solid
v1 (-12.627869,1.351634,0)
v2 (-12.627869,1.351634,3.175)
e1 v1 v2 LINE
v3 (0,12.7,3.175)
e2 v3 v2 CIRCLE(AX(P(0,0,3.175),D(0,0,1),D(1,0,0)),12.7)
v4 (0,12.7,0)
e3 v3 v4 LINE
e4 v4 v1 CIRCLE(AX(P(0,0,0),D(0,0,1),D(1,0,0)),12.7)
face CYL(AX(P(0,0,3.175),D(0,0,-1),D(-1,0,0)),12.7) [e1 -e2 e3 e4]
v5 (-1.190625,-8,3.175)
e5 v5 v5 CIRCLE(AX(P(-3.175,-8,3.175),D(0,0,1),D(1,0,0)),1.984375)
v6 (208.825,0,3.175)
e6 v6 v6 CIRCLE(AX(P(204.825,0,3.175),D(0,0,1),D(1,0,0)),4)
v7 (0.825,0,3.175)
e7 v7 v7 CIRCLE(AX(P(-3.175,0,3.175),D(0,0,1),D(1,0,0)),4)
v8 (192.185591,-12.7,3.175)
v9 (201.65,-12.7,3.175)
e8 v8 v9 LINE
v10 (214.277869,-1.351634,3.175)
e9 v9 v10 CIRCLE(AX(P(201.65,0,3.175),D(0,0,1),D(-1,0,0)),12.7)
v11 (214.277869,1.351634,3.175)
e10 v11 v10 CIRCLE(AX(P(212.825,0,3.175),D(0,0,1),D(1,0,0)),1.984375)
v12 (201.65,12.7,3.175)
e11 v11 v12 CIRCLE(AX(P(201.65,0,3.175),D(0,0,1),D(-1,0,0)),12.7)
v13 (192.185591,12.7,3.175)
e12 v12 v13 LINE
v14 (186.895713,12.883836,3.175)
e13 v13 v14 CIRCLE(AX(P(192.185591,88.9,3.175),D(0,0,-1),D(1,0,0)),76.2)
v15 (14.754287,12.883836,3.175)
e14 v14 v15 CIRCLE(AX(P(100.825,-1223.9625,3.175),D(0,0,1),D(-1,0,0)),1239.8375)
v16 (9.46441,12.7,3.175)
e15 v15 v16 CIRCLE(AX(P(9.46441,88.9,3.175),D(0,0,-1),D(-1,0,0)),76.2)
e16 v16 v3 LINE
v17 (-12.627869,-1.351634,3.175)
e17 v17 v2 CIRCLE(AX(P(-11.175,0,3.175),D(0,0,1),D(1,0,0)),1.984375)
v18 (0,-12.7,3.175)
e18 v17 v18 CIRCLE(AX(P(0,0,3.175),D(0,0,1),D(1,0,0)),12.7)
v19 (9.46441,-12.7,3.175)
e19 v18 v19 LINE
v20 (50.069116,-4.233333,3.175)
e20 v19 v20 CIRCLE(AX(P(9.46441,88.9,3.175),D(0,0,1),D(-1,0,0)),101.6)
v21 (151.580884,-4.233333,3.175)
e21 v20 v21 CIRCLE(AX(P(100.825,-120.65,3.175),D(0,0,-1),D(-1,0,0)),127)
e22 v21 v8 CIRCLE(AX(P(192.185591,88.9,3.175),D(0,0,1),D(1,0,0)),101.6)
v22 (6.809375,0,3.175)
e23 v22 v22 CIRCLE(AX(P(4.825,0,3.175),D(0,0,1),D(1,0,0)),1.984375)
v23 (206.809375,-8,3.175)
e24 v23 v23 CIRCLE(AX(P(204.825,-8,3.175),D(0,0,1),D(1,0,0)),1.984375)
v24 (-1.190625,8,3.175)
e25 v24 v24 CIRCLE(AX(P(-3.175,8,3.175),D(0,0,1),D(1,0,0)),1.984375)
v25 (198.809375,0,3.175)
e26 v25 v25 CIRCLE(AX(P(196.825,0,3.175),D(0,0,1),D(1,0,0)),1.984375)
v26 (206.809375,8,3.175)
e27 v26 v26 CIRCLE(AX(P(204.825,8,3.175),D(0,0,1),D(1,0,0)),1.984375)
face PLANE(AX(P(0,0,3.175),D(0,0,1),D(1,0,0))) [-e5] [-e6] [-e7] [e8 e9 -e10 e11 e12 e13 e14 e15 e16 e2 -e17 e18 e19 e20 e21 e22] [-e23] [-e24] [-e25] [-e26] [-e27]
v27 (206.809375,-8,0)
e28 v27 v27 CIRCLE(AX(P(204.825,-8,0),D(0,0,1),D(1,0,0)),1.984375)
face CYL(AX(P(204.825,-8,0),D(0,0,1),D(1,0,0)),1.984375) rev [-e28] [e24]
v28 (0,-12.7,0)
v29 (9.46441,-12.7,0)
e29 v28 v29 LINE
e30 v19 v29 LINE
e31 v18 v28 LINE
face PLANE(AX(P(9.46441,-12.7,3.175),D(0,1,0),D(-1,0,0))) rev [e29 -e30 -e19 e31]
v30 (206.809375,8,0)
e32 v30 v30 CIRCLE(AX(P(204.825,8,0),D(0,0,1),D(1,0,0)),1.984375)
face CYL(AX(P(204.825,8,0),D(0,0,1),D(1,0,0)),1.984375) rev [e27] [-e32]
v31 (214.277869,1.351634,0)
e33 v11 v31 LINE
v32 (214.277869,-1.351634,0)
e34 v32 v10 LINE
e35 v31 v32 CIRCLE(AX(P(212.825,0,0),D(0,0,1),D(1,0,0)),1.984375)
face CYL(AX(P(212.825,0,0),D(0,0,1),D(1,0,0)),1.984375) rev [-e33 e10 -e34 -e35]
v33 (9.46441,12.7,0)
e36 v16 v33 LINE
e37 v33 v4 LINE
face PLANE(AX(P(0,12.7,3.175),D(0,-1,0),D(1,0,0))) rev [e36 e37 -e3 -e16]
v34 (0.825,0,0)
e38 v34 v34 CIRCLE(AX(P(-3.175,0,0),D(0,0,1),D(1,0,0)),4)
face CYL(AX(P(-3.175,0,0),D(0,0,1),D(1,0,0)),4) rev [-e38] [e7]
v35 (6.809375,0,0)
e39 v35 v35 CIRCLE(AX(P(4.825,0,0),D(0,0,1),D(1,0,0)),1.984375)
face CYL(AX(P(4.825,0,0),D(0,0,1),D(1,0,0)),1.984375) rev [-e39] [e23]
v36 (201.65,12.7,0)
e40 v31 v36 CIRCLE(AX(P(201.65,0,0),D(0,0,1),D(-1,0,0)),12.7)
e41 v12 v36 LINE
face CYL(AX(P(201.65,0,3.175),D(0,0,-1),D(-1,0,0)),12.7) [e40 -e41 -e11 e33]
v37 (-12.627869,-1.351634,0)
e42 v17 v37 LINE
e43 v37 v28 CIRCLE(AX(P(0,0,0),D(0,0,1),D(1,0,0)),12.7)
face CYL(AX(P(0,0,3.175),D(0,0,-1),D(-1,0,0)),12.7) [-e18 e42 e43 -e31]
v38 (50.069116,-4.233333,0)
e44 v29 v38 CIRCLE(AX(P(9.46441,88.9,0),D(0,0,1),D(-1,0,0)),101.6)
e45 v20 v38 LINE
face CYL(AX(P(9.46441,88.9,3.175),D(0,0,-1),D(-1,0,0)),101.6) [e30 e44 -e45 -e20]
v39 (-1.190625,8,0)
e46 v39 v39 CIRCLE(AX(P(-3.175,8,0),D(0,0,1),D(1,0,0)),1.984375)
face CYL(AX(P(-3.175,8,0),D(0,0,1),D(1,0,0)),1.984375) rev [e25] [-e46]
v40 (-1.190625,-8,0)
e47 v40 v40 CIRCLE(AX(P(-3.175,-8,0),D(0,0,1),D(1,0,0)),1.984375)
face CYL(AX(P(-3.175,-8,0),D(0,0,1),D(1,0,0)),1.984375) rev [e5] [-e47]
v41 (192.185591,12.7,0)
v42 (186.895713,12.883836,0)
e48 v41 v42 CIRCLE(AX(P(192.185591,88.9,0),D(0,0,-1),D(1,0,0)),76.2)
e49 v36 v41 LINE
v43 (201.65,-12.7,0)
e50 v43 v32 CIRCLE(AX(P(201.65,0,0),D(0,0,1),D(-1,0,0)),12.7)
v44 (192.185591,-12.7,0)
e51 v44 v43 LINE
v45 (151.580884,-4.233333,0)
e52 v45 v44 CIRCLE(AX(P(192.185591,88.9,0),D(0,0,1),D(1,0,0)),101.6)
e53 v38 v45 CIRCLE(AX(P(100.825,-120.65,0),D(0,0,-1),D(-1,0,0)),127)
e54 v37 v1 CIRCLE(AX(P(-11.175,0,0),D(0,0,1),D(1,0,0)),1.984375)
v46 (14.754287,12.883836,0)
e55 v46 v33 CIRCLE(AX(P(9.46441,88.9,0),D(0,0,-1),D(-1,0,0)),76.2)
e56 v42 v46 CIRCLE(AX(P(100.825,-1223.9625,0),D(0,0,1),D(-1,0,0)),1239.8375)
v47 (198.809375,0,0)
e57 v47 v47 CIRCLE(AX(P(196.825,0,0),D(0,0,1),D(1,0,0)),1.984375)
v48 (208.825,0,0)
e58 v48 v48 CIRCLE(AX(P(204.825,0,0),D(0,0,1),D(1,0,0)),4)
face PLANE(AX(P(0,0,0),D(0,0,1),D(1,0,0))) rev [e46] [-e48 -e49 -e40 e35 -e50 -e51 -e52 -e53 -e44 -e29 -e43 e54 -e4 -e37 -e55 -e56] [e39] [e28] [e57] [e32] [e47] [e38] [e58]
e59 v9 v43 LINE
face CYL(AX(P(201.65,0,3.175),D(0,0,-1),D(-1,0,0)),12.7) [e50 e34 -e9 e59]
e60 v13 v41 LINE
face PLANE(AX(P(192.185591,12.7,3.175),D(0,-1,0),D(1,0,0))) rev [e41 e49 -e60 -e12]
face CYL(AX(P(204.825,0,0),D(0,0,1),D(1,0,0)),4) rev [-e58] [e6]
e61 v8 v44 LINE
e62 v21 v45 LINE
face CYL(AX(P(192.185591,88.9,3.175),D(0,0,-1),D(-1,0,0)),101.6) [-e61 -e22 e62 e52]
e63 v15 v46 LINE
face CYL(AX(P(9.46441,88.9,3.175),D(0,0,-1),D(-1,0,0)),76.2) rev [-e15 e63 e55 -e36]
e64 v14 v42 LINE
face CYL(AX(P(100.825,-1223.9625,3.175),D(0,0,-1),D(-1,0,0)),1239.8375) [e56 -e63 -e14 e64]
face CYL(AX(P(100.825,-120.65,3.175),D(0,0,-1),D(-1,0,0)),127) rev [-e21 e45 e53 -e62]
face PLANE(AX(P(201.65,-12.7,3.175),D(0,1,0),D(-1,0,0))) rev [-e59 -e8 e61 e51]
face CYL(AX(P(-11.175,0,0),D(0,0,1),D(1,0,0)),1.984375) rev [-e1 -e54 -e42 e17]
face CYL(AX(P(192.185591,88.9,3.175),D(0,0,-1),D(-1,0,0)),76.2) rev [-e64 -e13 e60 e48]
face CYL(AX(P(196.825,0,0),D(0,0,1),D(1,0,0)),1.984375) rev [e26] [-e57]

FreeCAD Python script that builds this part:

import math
import FreeCAD as App
import Part
import Sketcher
Q = App.Units.Quantity

doc = App.newDocument("Part")
body = doc.addObject("PartDesign::Body", "Body")

# Sketch on XY plane
sketch1 = doc.addObject("Sketcher::SketchObject", "Sketch")
body.addObject(sketch1)
sketch1.AttachmentSupport = (doc.XY_Plane, [""])
sketch1.MapMode = "FlatFace"
sketch1.addGeometry(Part.LineSegment(App.Vector(9, 13, 0), App.Vector(0, 13, 0)), False)
sketch1.addGeometry(Part.ArcOfCircle(Part.Circle(App.Vector(0, 0, 0), App.Vector(0, 0, 1), 13), math.radians(90), math.radians(270)), False)
sketch1.addGeometry(Part.LineSegment(App.Vector(0, -13, 0), App.Vector(9, -13, 0)), False)
sketch1.addGeometry(Part.ArcOfCircle(Part.Circle(App.Vector(9, 89, 0), App.Vector(0, 0, 1), 102), math.radians(-90), math.radians(-66)), False)
sketch1.addGeometry(Part.ArcOfCircle(Part.Circle(App.Vector(101, -121, 0), App.Vector(0, 0, 1), 127), math.radians(66), math.radians(114)), False)
sketch1.addGeometry(Part.ArcOfCircle(Part.Circle(App.Vector(192, 89, 0), App.Vector(0, 0, 1), 102), math.radians(-114), math.radians(-90)), False)
sketch1.addGeometry(Part.LineSegment(App.Vector(192, -13, 0), App.Vector(202, -13, 0)), False)
sketch1.addGeometry(Part.ArcOfCircle(Part.Circle(App.Vector(202, 0, 0), App.Vector(0, 0, 1), 13), math.radians(-90), math.radians(90)), False)
sketch1.addGeometry(Part.LineSegment(App.Vector(202, 13, 0), App.Vector(192, 13, 0)), False)
sketch1.addGeometry(Part.ArcOfCircle(Part.Circle(App.Vector(192, 89, 0), App.Vector(0, 0, 1), 76), math.radians(-93.98), math.radians(-90)), False)
sketch1.addGeometry(Part.ArcOfCircle(Part.Circle(App.Vector(101, -1224, 0), App.Vector(0, 0, 1), 1240), math.radians(86.02), math.radians(93.98)), False)
sketch1.addGeometry(Part.ArcOfCircle(Part.Circle(App.Vector(9, 89, 0), App.Vector(0, 0, 1), 76), math.radians(-90), math.radians(-86.02)), False)
sketch1.addConstraint(Sketcher.Constraint("Tangent", 0, 2, 1, 1))
sketch1.addConstraint(Sketcher.Constraint("Tangent", 1, 2, 2, 1))
sketch1.addConstraint(Sketcher.Constraint("Tangent", 2, 2, 3, 1))
sketch1.addConstraint(Sketcher.Constraint("Tangent", 3, 2, 4, 2))
sketch1.addConstraint(Sketcher.Constraint("Tangent", 4, 1, 5, 1))
sketch1.addConstraint(Sketcher.Constraint("Tangent", 5, 2, 6, 1))
sketch1.addConstraint(Sketcher.Constraint("Tangent", 6, 2, 7, 1))
sketch1.addConstraint(Sketcher.Constraint("Tangent", 7, 2, 8, 1))
sketch1.addConstraint(Sketcher.Constraint("Tangent", 8, 2, 9, 2))
sketch1.addConstraint(Sketcher.Constraint("Tangent", 9, 1, 10, 1))
sketch1.addConstraint(Sketcher.Constraint("Tangent", 10, 2, 11, 2))
sketch1.addConstraint(Sketcher.Constraint("Tangent", 11, 1, 0, 1))
sketch1.addConstraint(Sketcher.Constraint("Horizontal", 0))
sketch1.addConstraint(Sketcher.Constraint("Horizontal", 2))
sketch1.addConstraint(Sketcher.Constraint("Horizontal", 6))
sketch1.addConstraint(Sketcher.Constraint("Horizontal", 8))
sketch1.addConstraint(Sketcher.Constraint("Coincident", 1, 3, -1, 1))
sketch1.addConstraint(Sketcher.Constraint("Coincident", 9, 3, 5, 3))
sketch1.addConstraint(Sketcher.Constraint("Coincident", 11, 3, 3, 3))
sketch1.addConstraint(Sketcher.Constraint("Equal", 3, 5))
sketch1.addConstraint(Sketcher.Constraint("Equal", 1, 7))
sketch1.addConstraint(Sketcher.Constraint("PointOnObject", 7, 3, -1))
sketch1.addConstraint(Sketcher.Constraint("Equal", 2, 6))
sketch1.addConstraint(Sketcher.Constraint("Radius", 3, Q("4 in")))
sketch1.addConstraint(Sketcher.Constraint("Radius", 4, Q("5 in")))
sketch1.addConstraint(Sketcher.Constraint("Radius", 9, Q("3 in")))
sketch1.addConstraint(Sketcher.Constraint("Radius", 10, Q("48.8125 in")))
sketch1.addConstraint(Sketcher.Constraint("DistanceY", 4, 3, -1, 1, Q("4.75 in")))
sketch1.addConstraint(Sketcher.Constraint("DistanceX", 0, 2, 0, 1, Q("9.46441 mm")))
pad1 = doc.addObject("PartDesign::Pad", "Pad")
body.addObject(pad1)
pad1.Profile = sketch1
pad1.Length = Q("0.125 in")

# Sketch on XY plane
sketch2 = doc.addObject("Sketcher::SketchObject", "Sketch001")
body.addObject(sketch2)
sketch2.AttachmentSupport = (doc.XY_Plane, [""])
sketch2.MapMode = "FlatFace"
sketch2.AttachmentOffset = App.Placement(App.Vector(0, 0, 0.125 * 25.4), App.Rotation())
sketch2.addGeometry(Part.Circle(App.Vector(-3.2, 8, 0), App.Vector(0, 0, 1), 2), False)
sketch2.addGeometry(Part.Circle(App.Vector(-3.2, 0, 0), App.Vector(0, 0, 1), 4), False)
sketch2.addGeometry(Part.Circle(App.Vector(204.8, 0, 0), App.Vector(0, 0, 1), 4), False)
sketch2.addGeometry(Part.Circle(App.Vector(204.8, 8, 0), App.Vector(0, 0, 1), 2), False)
sketch2.addGeometry(Part.Circle(App.Vector(212.8, 0, 0), App.Vector(0, 0, 1), 2), False)
sketch2.addGeometry(Part.Circle(App.Vector(204.8, -8, 0), App.Vector(0, 0, 1), 2), False)
sketch2.addGeometry(Part.Circle(App.Vector(196.8, 0, 0), App.Vector(0, 0, 1), 2), False)
sketch2.addGeometry(Part.Circle(App.Vector(4.8, 0, 0), App.Vector(0, 0, 1), 2), False)
sketch2.addGeometry(Part.Circle(App.Vector(-3.2, -8, 0), App.Vector(0, 0, 1), 2), False)
sketch2.addGeometry(Part.Circle(App.Vector(-11.2, 0, 0), App.Vector(0, 0, 1), 2), False)
sketch2.addConstraint(Sketcher.Constraint("Equal", 1, 2))
sketch2.addConstraint(Sketcher.Constraint("Equal", 0, 3))
sketch2.addConstraint(Sketcher.Constraint("Equal", 3, 4))
sketch2.addConstraint(Sketcher.Constraint("Equal", 4, 5))
sketch2.addConstraint(Sketcher.Constraint("Equal", 5, 6))
sketch2.addConstraint(Sketcher.Constraint("Equal", 6, 7))
sketch2.addConstraint(Sketcher.Constraint("Equal", 7, 8))
sketch2.addConstraint(Sketcher.Constraint("Equal", 8, 9))
sketch2.addConstraint(Sketcher.Constraint("Symmetric", 3, 3, 5, 3, -1))
sketch2.addConstraint(Sketcher.Constraint("Symmetric", 0, 3, 8, 3, -1))
sketch2.addConstraint(Sketcher.Constraint("PointOnObject", 1, 3, -1))
sketch2.addConstraint(Sketcher.Constraint("PointOnObject", 2, 3, -1))
sketch2.addConstraint(Sketcher.Constraint("PointOnObject", 4, 3, -1))
sketch2.addConstraint(Sketcher.Constraint("PointOnObject", 6, 3, -1))
sketch2.addConstraint(Sketcher.Constraint("PointOnObject", 7, 3, -1))
sketch2.addConstraint(Sketcher.Constraint("PointOnObject", 9, 3, -1))
sketch2.addConstraint(Sketcher.Constraint("Horizontal", 0, 3, 3, 3))
sketch2.addConstraint(Sketcher.Constraint("Vertical", 0, 3, 1, 3))
sketch2.addConstraint(Sketcher.Constraint("Vertical", 2, 3, 3, 3))
sketch2.addConstraint(Sketcher.Constraint("Diameter", 0, Q("0.15625 in")))
sketch2.addConstraint(Sketcher.Constraint("Diameter", 1, Q("8 mm")))
sketch2.addConstraint(Sketcher.Constraint("DistanceX", 0, 3, -1, 1, Q("0.125 in")))
sketch2.addConstraint(Sketcher.Constraint("DistanceY", -1, 1, 0, 3, Q("8 mm")))
sketch2.addConstraint(Sketcher.Constraint("DistanceX", -1, 1, 2, 3, Q("204.825 mm")))
sketch2.addConstraint(Sketcher.Constraint("DistanceX", -1, 1, 4, 3, Q("212.825 mm")))
sketch2.addConstraint(Sketcher.Constraint("DistanceX", -1, 1, 6, 3, Q("196.825 mm")))
sketch2.addConstraint(Sketcher.Constraint("DistanceX", -1, 1, 7, 3, Q("4.825 mm")))
sketch2.addConstraint(Sketcher.Constraint("DistanceX", 9, 3, -1, 1, Q("11.175 mm")))
pocket1 = doc.addObject("PartDesign::Pocket", "Pocket")
body.addObject(pocket1)
pocket1.Profile = sketch2
pocket1.Type = "ThroughAll"

doc.recompute()
